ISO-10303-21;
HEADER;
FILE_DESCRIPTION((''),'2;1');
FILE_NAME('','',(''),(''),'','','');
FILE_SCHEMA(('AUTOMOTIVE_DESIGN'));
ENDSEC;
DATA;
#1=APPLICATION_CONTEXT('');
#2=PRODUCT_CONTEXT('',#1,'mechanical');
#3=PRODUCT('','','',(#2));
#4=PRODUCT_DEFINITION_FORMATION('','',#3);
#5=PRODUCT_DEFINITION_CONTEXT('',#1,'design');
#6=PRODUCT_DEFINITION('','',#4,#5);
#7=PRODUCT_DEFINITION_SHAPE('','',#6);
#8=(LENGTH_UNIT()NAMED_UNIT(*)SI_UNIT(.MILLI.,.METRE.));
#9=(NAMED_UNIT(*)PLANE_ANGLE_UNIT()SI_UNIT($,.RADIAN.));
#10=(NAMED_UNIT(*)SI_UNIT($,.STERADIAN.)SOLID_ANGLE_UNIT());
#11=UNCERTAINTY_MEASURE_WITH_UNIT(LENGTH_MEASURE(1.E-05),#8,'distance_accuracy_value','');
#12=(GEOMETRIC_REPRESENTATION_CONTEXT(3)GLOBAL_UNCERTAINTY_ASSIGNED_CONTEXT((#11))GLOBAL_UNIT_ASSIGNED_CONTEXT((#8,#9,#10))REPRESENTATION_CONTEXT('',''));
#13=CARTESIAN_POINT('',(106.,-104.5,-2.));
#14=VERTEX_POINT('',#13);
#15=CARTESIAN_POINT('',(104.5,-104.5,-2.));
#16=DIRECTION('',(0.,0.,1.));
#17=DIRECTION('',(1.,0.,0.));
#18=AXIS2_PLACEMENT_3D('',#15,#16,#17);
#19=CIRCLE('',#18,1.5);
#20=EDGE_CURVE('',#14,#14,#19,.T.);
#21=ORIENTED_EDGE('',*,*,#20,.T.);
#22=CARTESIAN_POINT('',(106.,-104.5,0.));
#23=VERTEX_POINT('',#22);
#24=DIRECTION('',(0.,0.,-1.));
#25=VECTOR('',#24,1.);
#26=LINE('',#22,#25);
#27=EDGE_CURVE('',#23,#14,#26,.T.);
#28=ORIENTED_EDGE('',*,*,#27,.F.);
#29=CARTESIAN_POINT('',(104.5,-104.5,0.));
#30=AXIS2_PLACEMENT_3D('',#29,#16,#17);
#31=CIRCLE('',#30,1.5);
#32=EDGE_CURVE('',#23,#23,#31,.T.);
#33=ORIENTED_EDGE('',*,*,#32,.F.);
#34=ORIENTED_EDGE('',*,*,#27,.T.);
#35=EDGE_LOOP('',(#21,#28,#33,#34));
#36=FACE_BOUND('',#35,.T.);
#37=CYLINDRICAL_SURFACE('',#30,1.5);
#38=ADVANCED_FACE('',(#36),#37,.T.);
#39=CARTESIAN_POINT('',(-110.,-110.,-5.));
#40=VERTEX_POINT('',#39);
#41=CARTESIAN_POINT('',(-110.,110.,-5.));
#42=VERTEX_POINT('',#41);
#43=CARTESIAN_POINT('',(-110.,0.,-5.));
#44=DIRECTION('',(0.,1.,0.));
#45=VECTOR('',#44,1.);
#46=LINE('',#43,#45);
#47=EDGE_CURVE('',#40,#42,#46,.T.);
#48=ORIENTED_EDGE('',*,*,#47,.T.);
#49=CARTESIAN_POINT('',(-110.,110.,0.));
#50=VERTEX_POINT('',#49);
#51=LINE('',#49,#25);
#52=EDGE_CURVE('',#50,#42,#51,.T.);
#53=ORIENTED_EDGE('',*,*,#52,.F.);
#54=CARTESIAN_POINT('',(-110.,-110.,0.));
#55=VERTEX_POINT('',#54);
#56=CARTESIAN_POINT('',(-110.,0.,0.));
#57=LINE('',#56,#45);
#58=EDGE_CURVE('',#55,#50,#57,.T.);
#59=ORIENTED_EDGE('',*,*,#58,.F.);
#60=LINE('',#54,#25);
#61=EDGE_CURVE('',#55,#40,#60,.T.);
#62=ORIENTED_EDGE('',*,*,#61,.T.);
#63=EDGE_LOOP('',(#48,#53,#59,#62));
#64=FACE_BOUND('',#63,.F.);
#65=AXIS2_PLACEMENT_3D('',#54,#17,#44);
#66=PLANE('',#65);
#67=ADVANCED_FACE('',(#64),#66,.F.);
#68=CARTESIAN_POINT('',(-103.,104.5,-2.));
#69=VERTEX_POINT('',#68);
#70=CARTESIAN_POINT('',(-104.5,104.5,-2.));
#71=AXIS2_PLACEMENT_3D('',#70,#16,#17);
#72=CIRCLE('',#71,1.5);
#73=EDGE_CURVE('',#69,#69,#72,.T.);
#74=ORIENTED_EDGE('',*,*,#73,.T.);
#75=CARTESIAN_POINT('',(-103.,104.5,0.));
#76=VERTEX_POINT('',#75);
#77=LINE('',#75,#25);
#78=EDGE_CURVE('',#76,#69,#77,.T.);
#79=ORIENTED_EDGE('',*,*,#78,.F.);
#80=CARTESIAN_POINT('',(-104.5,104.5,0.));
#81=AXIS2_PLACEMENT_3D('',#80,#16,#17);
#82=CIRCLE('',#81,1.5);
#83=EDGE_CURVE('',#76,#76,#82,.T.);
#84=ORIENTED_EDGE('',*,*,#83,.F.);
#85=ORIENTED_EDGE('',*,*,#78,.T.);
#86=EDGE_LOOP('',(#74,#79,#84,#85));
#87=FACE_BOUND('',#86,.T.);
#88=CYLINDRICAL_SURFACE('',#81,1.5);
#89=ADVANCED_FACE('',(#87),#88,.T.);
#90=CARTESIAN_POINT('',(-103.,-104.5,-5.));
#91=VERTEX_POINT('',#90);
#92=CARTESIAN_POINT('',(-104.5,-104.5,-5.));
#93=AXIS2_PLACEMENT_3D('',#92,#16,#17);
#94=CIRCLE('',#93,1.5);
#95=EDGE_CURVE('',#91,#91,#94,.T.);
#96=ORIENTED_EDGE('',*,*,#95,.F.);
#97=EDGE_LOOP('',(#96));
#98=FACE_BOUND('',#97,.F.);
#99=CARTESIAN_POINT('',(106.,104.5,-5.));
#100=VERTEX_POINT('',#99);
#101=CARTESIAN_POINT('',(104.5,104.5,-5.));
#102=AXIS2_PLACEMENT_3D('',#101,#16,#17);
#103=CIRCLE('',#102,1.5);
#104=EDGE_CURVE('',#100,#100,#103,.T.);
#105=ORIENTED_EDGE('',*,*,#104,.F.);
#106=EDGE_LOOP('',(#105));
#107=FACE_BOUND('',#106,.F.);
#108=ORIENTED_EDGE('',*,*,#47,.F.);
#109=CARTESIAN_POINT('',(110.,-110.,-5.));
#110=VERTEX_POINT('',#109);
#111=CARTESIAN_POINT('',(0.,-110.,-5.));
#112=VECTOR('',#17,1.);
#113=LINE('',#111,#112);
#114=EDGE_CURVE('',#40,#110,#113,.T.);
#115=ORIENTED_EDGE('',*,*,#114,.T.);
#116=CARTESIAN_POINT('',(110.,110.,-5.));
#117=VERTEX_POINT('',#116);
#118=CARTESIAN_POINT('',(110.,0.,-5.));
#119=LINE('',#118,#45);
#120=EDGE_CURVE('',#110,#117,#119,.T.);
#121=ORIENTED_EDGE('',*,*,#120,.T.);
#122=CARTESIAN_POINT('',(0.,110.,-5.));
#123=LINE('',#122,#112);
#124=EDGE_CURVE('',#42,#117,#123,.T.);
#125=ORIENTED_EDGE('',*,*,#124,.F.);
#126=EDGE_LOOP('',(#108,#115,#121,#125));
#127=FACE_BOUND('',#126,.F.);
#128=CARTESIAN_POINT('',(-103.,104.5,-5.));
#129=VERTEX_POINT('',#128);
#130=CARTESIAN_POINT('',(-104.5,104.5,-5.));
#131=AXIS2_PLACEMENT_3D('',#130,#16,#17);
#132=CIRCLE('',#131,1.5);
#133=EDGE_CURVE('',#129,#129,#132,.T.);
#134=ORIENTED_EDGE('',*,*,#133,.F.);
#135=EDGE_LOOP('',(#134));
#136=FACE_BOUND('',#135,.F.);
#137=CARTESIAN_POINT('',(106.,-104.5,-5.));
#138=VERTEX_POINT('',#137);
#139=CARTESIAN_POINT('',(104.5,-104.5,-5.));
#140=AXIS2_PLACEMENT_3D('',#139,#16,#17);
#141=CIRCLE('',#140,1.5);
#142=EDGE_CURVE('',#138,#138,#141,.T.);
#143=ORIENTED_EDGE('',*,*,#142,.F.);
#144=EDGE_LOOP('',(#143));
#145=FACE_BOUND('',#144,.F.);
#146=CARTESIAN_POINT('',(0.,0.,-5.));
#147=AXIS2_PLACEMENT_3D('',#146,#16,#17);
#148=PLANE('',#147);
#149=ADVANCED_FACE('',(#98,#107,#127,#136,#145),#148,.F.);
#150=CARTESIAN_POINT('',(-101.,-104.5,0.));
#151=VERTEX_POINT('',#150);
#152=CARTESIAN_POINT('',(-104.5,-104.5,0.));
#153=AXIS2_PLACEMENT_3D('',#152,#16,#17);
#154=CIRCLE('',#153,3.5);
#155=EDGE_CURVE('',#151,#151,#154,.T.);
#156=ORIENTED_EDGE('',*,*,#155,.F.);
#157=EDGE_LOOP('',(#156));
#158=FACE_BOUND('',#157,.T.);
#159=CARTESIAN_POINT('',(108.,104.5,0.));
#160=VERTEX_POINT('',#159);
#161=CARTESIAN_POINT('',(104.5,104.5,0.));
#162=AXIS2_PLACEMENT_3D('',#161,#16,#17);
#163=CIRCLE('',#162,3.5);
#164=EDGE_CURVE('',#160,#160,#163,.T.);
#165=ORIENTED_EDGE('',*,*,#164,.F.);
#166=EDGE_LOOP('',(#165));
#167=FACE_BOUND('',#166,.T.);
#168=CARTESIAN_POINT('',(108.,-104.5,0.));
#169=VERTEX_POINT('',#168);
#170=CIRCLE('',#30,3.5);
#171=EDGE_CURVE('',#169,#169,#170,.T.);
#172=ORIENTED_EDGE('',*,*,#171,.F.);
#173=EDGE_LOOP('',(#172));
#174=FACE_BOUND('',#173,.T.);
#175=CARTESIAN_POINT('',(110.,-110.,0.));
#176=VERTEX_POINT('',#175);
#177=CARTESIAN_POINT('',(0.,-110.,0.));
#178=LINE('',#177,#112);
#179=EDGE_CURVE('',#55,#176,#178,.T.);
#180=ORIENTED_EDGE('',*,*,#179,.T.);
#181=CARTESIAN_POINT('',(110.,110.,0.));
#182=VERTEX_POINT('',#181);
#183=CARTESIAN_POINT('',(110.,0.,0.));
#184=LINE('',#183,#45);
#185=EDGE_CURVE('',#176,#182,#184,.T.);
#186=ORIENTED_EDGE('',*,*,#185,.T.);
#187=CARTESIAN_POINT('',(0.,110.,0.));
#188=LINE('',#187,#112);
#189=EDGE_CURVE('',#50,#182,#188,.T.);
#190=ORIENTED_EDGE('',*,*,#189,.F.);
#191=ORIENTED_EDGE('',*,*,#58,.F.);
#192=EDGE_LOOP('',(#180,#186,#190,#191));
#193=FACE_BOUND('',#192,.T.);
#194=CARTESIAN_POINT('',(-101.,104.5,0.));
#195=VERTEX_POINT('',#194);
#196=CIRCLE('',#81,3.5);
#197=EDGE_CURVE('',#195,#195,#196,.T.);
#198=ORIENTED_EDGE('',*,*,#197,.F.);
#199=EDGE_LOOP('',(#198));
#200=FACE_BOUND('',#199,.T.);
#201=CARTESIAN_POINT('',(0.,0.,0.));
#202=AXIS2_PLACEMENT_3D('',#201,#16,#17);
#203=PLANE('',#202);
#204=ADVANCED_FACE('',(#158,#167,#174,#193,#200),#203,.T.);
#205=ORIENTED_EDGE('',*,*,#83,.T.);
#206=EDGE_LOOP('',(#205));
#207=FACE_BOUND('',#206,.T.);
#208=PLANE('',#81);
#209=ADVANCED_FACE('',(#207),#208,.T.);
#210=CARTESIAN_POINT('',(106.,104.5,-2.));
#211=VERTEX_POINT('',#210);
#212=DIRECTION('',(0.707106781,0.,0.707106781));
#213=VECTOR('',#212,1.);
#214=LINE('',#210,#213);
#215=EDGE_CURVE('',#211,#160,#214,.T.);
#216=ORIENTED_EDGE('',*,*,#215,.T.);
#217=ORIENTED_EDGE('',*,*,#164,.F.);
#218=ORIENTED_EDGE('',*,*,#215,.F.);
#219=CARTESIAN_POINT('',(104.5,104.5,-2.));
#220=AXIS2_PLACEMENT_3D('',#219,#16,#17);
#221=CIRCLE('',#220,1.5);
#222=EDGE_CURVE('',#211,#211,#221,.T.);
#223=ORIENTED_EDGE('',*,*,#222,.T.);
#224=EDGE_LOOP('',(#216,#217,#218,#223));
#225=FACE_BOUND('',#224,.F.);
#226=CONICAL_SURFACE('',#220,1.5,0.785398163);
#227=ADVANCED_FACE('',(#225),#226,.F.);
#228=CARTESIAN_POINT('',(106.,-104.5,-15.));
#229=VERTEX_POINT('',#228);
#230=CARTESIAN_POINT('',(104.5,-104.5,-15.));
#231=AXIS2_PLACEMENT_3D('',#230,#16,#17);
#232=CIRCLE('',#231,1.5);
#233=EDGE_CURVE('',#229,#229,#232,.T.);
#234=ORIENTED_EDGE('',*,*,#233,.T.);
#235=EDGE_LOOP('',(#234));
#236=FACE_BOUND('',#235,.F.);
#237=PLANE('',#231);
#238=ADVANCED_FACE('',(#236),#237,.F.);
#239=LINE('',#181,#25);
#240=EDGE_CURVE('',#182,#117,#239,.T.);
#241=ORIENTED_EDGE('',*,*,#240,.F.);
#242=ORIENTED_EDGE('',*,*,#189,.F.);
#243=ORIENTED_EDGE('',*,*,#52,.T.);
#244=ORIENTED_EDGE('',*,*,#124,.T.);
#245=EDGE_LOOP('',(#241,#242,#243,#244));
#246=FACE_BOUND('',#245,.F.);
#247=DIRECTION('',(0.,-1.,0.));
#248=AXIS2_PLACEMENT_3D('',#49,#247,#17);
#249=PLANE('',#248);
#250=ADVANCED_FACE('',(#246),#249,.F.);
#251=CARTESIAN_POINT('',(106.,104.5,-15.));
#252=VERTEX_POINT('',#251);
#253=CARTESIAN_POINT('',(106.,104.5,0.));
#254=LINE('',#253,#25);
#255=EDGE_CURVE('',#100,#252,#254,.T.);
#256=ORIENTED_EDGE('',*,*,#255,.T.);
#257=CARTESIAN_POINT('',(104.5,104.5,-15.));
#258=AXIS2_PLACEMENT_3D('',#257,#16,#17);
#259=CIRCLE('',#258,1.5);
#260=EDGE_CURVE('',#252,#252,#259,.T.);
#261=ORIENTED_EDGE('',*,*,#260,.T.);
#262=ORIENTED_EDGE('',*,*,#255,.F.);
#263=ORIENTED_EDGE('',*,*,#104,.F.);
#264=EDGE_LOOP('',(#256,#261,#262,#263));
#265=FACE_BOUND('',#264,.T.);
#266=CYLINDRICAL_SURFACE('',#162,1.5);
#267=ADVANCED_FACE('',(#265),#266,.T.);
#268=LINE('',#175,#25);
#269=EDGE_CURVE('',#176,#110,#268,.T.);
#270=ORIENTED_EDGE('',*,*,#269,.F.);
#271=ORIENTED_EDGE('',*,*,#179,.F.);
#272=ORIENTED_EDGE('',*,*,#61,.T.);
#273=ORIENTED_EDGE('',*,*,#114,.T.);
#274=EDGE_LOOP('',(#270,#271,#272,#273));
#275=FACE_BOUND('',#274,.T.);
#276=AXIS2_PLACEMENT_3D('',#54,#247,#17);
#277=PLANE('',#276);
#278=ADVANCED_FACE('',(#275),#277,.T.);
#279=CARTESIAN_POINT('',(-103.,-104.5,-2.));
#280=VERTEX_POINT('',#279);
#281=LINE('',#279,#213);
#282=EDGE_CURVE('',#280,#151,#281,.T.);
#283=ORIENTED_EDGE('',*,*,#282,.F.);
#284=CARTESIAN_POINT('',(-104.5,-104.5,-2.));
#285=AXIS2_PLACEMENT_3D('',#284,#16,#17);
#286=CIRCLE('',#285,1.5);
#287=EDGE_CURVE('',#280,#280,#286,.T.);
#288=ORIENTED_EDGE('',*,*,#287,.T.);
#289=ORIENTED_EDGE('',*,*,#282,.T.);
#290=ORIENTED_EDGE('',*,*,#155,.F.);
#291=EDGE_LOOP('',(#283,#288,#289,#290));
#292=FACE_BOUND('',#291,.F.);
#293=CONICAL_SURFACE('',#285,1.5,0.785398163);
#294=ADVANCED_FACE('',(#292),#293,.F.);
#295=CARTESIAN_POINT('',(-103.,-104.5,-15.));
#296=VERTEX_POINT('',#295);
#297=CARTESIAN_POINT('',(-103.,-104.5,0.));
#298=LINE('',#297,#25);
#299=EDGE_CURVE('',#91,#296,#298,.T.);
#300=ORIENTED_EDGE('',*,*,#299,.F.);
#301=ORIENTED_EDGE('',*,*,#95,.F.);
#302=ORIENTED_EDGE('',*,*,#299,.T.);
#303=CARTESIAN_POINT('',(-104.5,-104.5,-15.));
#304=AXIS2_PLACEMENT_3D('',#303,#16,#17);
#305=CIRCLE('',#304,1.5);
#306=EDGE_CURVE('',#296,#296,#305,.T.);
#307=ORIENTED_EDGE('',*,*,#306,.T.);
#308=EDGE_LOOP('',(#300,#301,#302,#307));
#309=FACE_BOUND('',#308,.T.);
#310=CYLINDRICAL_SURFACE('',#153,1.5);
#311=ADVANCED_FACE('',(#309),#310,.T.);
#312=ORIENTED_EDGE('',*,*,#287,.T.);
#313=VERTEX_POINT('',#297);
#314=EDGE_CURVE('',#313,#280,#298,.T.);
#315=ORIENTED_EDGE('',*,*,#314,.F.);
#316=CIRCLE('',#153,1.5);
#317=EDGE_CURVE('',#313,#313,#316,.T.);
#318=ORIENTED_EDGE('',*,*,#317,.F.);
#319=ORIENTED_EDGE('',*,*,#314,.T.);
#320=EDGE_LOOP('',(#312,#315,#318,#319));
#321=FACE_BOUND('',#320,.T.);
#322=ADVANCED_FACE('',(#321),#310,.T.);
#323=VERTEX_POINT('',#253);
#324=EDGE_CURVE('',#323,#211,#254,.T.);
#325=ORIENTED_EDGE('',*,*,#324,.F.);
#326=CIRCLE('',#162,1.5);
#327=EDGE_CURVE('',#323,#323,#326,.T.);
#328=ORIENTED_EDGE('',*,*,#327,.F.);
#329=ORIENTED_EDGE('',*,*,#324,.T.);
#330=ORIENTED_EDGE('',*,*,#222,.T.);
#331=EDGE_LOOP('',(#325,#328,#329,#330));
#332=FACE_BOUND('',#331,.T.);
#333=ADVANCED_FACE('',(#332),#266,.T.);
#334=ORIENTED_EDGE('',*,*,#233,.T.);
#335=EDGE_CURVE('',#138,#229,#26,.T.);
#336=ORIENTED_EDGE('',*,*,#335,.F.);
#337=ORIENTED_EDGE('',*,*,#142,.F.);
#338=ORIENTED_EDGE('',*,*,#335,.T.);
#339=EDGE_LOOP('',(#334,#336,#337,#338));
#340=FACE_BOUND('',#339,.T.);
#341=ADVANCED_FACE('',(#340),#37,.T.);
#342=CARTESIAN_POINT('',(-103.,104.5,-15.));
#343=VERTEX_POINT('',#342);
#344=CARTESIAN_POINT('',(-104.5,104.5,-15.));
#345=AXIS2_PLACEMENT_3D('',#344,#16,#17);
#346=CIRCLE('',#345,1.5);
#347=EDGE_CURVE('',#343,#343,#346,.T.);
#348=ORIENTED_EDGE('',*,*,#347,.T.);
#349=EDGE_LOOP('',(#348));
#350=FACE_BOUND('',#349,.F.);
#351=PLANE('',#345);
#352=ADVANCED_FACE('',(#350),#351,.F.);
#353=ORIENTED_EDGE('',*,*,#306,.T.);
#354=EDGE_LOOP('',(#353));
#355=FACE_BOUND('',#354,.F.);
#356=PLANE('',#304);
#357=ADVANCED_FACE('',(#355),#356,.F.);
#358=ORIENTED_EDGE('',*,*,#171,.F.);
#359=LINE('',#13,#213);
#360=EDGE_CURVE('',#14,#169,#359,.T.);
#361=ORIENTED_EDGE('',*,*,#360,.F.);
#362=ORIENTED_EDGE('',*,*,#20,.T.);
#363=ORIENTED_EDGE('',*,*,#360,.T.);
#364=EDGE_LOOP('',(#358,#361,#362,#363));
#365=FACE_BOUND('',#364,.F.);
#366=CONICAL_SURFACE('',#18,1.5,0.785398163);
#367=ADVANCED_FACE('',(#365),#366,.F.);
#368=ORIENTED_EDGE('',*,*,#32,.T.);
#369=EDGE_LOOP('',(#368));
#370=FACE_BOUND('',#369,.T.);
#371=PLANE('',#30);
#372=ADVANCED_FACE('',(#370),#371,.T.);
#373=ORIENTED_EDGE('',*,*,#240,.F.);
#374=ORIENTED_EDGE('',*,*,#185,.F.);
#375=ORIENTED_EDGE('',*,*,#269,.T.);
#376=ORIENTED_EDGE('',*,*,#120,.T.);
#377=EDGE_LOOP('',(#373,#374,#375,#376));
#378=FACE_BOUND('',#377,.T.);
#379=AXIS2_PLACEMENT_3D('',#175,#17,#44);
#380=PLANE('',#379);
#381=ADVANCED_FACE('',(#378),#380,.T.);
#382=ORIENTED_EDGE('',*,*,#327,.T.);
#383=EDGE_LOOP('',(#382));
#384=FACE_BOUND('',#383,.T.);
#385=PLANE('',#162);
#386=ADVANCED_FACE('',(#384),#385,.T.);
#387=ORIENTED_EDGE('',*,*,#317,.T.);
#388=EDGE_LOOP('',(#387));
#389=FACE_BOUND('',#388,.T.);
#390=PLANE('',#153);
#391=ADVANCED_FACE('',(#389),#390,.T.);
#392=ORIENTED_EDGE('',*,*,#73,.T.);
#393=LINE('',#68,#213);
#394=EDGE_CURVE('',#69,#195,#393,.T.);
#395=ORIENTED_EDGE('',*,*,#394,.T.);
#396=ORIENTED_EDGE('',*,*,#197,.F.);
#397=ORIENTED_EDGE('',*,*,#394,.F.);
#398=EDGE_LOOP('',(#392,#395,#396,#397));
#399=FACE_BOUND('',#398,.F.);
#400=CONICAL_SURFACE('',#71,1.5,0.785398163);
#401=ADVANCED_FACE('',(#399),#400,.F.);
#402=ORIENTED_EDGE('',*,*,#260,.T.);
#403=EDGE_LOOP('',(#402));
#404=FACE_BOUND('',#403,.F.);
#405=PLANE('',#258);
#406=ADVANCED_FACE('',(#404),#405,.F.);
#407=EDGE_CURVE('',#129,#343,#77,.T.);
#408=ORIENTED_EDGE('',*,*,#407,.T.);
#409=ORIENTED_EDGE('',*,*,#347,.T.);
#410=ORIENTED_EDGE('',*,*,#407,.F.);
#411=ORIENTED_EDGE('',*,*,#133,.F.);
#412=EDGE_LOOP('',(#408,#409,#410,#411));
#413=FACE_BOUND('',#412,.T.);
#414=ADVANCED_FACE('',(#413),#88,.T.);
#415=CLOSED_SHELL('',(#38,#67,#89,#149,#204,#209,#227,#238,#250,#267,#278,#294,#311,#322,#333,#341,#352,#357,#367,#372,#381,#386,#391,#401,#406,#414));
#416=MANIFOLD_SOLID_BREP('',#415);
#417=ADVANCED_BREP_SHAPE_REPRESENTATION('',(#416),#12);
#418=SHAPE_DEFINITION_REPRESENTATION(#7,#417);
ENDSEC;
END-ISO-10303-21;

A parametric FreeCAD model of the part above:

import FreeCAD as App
import Part
import Sketcher
from FreeCAD import Vector
Q = App.Units.Quantity


def edges_at(feature, points):
    """Names of the edges that pass closest to the given points."""
    edges = feature.Shape.Edges
    near = lambda p: min(range(len(edges)), key=lambda i: edges[i].distToShape(Part.Vertex(*p))[0])
    return sorted({f"Edge{near(p) + 1}" for p in points})


def add_polygon(sketch, points):
    """Adds a closed chain of lines whose ends are joined by coincident constraints."""
    first, n = sketch.GeometryCount, len(points)
    for a, b in zip(points, points[1:] + points[:1]):
        sketch.addGeometry(Part.LineSegment(App.Vector(*a, 0), App.Vector(*b, 0)), False)
    for i in range(n):
        sketch.addConstraint(Sketcher.Constraint("Coincident", first + i, 2, first + (i + 1) % n, 1))

doc = App.newDocument("Part")
body = doc.addObject("PartDesign::Body", "Body")

# Sketch on XY plane
sketch1 = body.newObject("Sketcher::SketchObject", "Sketch")
sketch1.AttachmentSupport = (doc.getObject("XY_Plane"), [""])
sketch1.MapMode = "FlatFace"
add_polygon(sketch1, [(-110, 110), (-110, -110), (110, -110), (110, 110)])  # lines 0-3
sketch1.addGeometry(Part.Circle(Vector(-104.5, -104.5, 0), Vector(0, 0, 1), 1.5), False)  # 4
sketch1.addGeometry(Part.Circle(Vector(104.5, -104.5, 0), Vector(0, 0, 1), 1.5), False)  # 5
sketch1.addGeometry(Part.Circle(Vector(-104.5, 104.5, 0), Vector(0, 0, 1), 1.5), False)  # 6
sketch1.addGeometry(Part.Circle(Vector(104.5, 104.5, 0), Vector(0, 0, 1), 1.5), False)  # 7
sketch1.addConstraint(Sketcher.Constraint("Vertical", 0))
sketch1.addConstraint(Sketcher.Constraint("Horizontal", 1))
sketch1.addConstraint(Sketcher.Constraint("Vertical", 2))
sketch1.addConstraint(Sketcher.Constraint("Horizontal", 3))
sketch1.addConstraint(Sketcher.Constraint("Equal", 4, 5))
sketch1.addConstraint(Sketcher.Constraint("Equal", 5, 6))
sketch1.addConstraint(Sketcher.Constraint("Equal", 6, 7))
sketch1.addConstraint(Sketcher.Constraint("Symmetric", 5, 3, 6, 3, -1, 1))
sketch1.addConstraint(Sketcher.Constraint("Symmetric", 4, 3, 7, 3, -1, 1))
sketch1.addConstraint(Sketcher.Constraint("Symmetric", 0, 2, 2, 2, -1, 1))
sketch1.addConstraint(Sketcher.Constraint("Symmetric", 4, 3, 5, 3, -2))
sketch1.addConstraint(Sketcher.Constraint("Equal", 3, 0))
sketch1.addConstraint(Sketcher.Constraint("Diameter", 4, Q("3 mm")))
sketch1.addConstraint(Sketcher.Constraint("DistanceX", 1, 1, 1, 2, Q("220 mm")))
sketch1.addConstraint(Sketcher.Constraint("DistanceX", 4, 3, 5, 3, Q("209 mm")))
sketch1.addConstraint(Sketcher.Constraint("DistanceY", 4, 3, 6, 3, Q("209 mm")))
pad1 = body.newObject("PartDesign::Pad", "Pad")
pad1.Profile = sketch1
pad1.Length = 5
pad1.Reversed = True
doc.recompute()

chamfer = body.newObject("PartDesign::Chamfer", "Chamfer")
chamfer.Base = (pad1, edges_at(pad1, [
    (-106, 104.5, 0),
    (103, 104.5, 0),
    (103, -104.5, 0),
    (-106, -104.5, 0),
]))
chamfer.Size = 2

# Sketch on XY plane
sketch2 = body.newObject("Sketcher::SketchObject", "Sketch001")
sketch2.AttachmentSupport = (doc.getObject("XY_Plane"), [""])
sketch2.MapMode = "FlatFace"
sketch2.addGeometry(Part.Circle(Vector(-104.5, 104.5, 0), Vector(0, 0, 1), 1.5), False)
sketch2.addGeometry(Part.Circle(Vector(-104.5, -104.5, 0), Vector(0, 0, 1), 1.5), False)
sketch2.addGeometry(Part.Circle(Vector(104.5, -104.5, 0), Vector(0, 0, 1), 1.5), False)
sketch2.addGeometry(Part.Circle(Vector(104.5, 104.5, 0), Vector(0, 0, 1), 1.5), False)
sketch2.addConstraint(Sketcher.Constraint("Equal", 0, 1))
sketch2.addConstraint(Sketcher.Constraint("Equal", 1, 2))
sketch2.addConstraint(Sketcher.Constraint("Equal", 2, 3))
sketch2.addConstraint(Sketcher.Constraint("Symmetric", 0, 3, 2, 3, -1, 1))
sketch2.addConstraint(Sketcher.Constraint("Symmetric", 1, 3, 3, 3, -1, 1))
sketch2.addConstraint(Sketcher.Constraint("Symmetric", 1, 3, 2, 3, -2))
sketch2.addConstraint(Sketcher.Constraint("Diameter", 0, Q("3 mm")))
sketch2.addConstraint(Sketcher.Constraint("DistanceY", 1, 3, 0, 3, Q("209 mm")))
sketch2.addConstraint(Sketcher.Constraint("DistanceX", 1, 3, 2, 3, Q("209 mm")))
pad2 = body.newObject("PartDesign::Pad", "Pad001")
pad2.Profile = sketch2
pad2.Length = 15
pad2.Reversed = True

doc.recompute()
